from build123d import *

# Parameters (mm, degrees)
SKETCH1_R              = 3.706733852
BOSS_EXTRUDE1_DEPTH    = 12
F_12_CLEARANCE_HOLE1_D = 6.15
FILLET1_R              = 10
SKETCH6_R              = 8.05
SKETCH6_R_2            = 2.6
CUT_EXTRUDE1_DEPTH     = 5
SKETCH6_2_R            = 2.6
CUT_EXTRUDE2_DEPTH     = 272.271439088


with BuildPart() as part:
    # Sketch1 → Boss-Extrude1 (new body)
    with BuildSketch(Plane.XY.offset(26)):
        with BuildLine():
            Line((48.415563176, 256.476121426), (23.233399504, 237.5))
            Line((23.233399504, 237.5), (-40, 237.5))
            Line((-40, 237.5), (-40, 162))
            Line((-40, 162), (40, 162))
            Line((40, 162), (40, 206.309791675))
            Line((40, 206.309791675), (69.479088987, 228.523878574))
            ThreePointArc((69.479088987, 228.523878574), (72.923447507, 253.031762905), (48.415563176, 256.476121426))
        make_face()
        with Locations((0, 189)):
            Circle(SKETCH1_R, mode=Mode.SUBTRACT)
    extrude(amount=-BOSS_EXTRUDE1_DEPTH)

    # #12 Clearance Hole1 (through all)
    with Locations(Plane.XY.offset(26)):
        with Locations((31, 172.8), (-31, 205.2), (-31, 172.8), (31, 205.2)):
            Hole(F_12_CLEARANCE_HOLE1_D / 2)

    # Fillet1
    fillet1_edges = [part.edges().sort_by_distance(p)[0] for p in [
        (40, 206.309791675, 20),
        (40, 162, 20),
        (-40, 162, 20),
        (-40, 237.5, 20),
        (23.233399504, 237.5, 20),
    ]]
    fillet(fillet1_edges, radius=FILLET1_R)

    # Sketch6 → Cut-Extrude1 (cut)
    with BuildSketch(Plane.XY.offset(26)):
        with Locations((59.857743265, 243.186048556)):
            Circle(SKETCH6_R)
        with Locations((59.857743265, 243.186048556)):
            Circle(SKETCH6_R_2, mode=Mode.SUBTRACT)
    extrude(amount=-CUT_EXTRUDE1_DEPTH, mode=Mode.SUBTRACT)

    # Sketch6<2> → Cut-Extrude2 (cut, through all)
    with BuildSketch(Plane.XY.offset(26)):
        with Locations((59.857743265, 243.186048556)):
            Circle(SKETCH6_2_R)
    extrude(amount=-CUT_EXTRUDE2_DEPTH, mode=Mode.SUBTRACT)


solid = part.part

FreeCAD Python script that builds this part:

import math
import FreeCAD as App
import Part
import Sketcher
from FreeCAD import Vector
Q = App.Units.Quantity


def edges_at(feature, points):
    """Names of the edges that pass closest to the given points."""
    edges = feature.Shape.Edges
    near = lambda p: min(range(len(edges)), key=lambda i: edges[i].distToShape(Part.Vertex(*p))[0])
    return sorted({f"Edge{near(p) + 1}" for p in points})

doc = App.newDocument("Part")
body = doc.addObject("PartDesign::Body", "Body")

sketch1 = body.newObject("Sketcher::SketchObject", "Sketch")
sketch1.AttachmentSupport = (doc.getObject("XY_Plane"), [""])
sketch1.MapMode = "FlatFace"
sketch1.AttachmentOffset = App.Placement(Vector(0, 0, 26), App.Rotation())
sketch1.addGeometry([
    Part.LineSegment(Vector(48.4, 256.5, 0), Vector(23.2, 237.5, 0)),
    Part.LineSegment(Vector(23.2, 237.5, 0), Vector(-40, 237.5, 0)),
    Part.LineSegment(Vector(-40, 237.5, 0), Vector(-40, 162, 0)),
    Part.LineSegment(Vector(-40, 162, 0), Vector(40, 162, 0)),
    Part.LineSegment(Vector(40, 162, 0), Vector(40, 206.3, 0)),
    Part.LineSegment(Vector(40, 206.3, 0), Vector(69.5, 228.5, 0)),
    Part.ArcOfCircle(Part.Circle(Vector(58.9, 242.5, 0), Vector(0, 0, 1), 17.5), math.radians(-53), math.radians(127)),
    Part.Circle(Vector(0, 189, 0), Vector(0, 0, 1), 3.7),
], False)
sketch1.addConstraint([
    Sketcher.Constraint("Coincident", 0, 2, 1, 1),
    Sketcher.Constraint("Coincident", 1, 2, 2, 1),
    Sketcher.Constraint("Coincident", 2, 2, 3, 1),
    Sketcher.Constraint("Coincident", 3, 2, 4, 1),
    Sketcher.Constraint("Coincident", 4, 2, 5, 1),
    Sketcher.Constraint("Tangent", 5, 2, 6, 1),
    Sketcher.Constraint("Tangent", 6, 2, 0, 1),
    Sketcher.Constraint("Horizontal", 1),
    Sketcher.Constraint("Vertical", 2),
    Sketcher.Constraint("Horizontal", 3),
    Sketcher.Constraint("Vertical", 4),
    Sketcher.Constraint("PointOnObject", 7, 3, -2),
    Sketcher.Constraint("Parallel", 0, 5),
    Sketcher.Constraint("Radius", 6, 17.5),
    Sketcher.Constraint("DistanceX", 3, 1, 3, 2, 80.0),
    Sketcher.Constraint("Angle", 0, Q("-143 deg")),
    Sketcher.Constraint("DistanceY", 2, 2, 2, 1, 75.5),
    Sketcher.Constraint("DistanceY", -1, 1, 7, 3, 189.0),
    Sketcher.Constraint("DistanceX", 1, 2, -1, 1, 40.0),
    Sketcher.Constraint("DistanceY", -1, 1, 2, 2, 162.0),
    Sketcher.Constraint("DistanceY", 0, 2, 6, 3, 5.0),
    Sketcher.Constraint("Diameter", 7, 7.413468),
    Sketcher.Constraint("DistanceX", 1, 2, 1, 1, 63.2334),
])
pad1 = body.newObject("PartDesign::Pad", "Pad")
pad1.Profile = sketch1
pad1.Length = 12
pad1.Reversed = True

sketch2 = body.newObject("Sketcher::SketchObject", "Sketch001")
sketch2.AttachmentSupport = (doc.getObject("XY_Plane"), [""])
sketch2.MapMode = "FlatFace"
sketch2.AttachmentOffset = App.Placement(Vector(0, 0, 26), App.Rotation())
sketch2.addGeometry([
    Part.Circle(Vector(31, 172.8, 0), Vector(0, 0, 1), 3.1),
    Part.Circle(Vector(-31, 205.2, 0), Vector(0, 0, 1), 3.1),
    Part.Circle(Vector(-31, 172.8, 0), Vector(0, 0, 1), 3.1),
    Part.Circle(Vector(31, 205.2, 0), Vector(0, 0, 1), 3.1),
], False)
sketch2.addConstraint([
    Sketcher.Constraint("Equal", 0, 1),
    Sketcher.Constraint("Equal", 1, 2),
    Sketcher.Constraint("Equal", 2, 3),
    Sketcher.Constraint("Symmetric", 0, 3, 2, 3, -2),
    Sketcher.Constraint("Symmetric", 1, 3, 3, 3, -2),
    Sketcher.Constraint("Vertical", 1, 3, 2, 3),
    Sketcher.Constraint("Diameter", 0, 6.15),
    Sketcher.Constraint("DistanceX", -1, 1, 0, 3, 31.0),
    Sketcher.Constraint("DistanceY", -1, 1, 0, 3, 172.8),
    Sketcher.Constraint("DistanceY", -1, 1, 1, 3, 205.2),
])
doc.recompute()
hole = body.newObject("PartDesign::Hole", "Hole")
hole.Profile = sketch2
hole.ThreadType = "None"
hole.Diameter = 6.15
hole.DepthType = "ThroughAll"
doc.recompute()

fillet = body.newObject("PartDesign::Fillet", "Fillet")
fillet.Base = (hole, edges_at(hole, [
    (40, 206.31, 20),
    (40, 162, 20),
    (-40, 162, 20),
    (-40, 237.5, 20),
    (23.233, 237.5, 20),
]))
fillet.Radius = 10

sketch3 = body.newObject("Sketcher::SketchObject", "Sketch002")
sketch3.AttachmentSupport = (doc.getObject("XY_Plane"), [""])
sketch3.MapMode = "FlatFace"
sketch3.AttachmentOffset = App.Placement(Vector(0, 0, 26), App.Rotation())
sketch3.addGeometry([
    Part.Circle(Vector(59.9, 243.2, 0), Vector(0, 0, 1), 8.1),
    Part.Circle(Vector(59.9, 243.2, 0), Vector(0, 0, 1), 2.6),
], False)
sketch3.addConstraint([
    Sketcher.Constraint("Coincident", 1, 3, 0, 3),
    Sketcher.Constraint("Diameter", 0, 16.1),
    Sketcher.Constraint("Diameter", 1, 5.2),
    Sketcher.Constraint("DistanceY", -1, 1, 0, 3, 243.186049),
    Sketcher.Constraint("DistanceX", -1, 1, 0, 3, 59.857743),
])
pocket1 = body.newObject("PartDesign::Pocket", "Pocket")
pocket1.Profile = sketch3
pocket1.Length = 5

sketch4 = body.newObject("Sketcher::SketchObject", "Sketch003")
sketch4.AttachmentSupport = (doc.getObject("XY_Plane"), [""])
sketch4.MapMode = "FlatFace"
sketch4.AttachmentOffset = App.Placement(Vector(0, 0, 26), App.Rotation())
sketch4.addGeometry(Part.Circle(Vector(59.9, 243.2, 0), Vector(0, 0, 1), 2.6), False)
sketch4.addConstraint([
    Sketcher.Constraint("Diameter", 0, 5.2),
    Sketcher.Constraint("DistanceY", -1, 1, 0, 3, 243.186049),
    Sketcher.Constraint("DistanceX", -1, 1, 0, 3, 59.857743),
])
pocket2 = body.newObject("PartDesign::Pocket", "Pocket001")
pocket2.Profile = sketch4
pocket2.Type = "ThroughAll"

doc.recompute()
